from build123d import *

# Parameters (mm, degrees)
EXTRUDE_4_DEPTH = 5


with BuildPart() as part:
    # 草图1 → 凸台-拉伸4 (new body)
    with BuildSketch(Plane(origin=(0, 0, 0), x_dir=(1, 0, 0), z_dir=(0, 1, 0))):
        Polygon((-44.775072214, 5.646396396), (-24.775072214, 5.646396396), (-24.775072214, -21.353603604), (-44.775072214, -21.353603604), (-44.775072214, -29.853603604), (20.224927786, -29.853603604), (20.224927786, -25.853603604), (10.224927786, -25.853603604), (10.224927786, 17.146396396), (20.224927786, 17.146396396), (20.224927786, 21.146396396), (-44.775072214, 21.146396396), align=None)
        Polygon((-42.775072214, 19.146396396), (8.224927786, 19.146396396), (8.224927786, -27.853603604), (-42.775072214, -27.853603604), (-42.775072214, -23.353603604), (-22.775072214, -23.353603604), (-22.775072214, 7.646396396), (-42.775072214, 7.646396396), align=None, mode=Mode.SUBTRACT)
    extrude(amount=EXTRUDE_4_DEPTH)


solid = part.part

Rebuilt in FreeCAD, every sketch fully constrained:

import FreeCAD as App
import Part
import Sketcher

V = App.Vector
Q = App.Units.Quantity

doc = App.newDocument("Part")
params = doc.addObject("Spreadsheet::Sheet", "Params")
for row, (alias, value) in enumerate([
    ("sketch1_width", "20 mm"),
    ("sketch1_width2", "65 mm"),
    ("sketch1_width3", "10 mm"),
    ("sketch1_width4", "51 mm"),
    ("sketch1_height", "27 mm"),
    ("pad1_length", "5 mm"),
], start=1):
    params.set(f"A{row}", alias)
    params.set(f"B{row}", "=" + value)
    params.setAlias(f"B{row}", alias)

body = doc.addObject("PartDesign::Body", "Body")

# Sketch on XZ plane
sketch1 = doc.addObject("Sketcher::SketchObject", "Sketch")
body.addObject(sketch1)
sketch1.AttachmentSupport = (doc.XZ_Plane, [""])
sketch1.MapMode = "FlatFace"
sketch1.addGeometry([
    Part.LineSegment(V(-44.775072, -5.646396, 0), V(-24.775072, -5.646396, 0)),  # 0
    Part.LineSegment(V(-24.775072, -5.646396, 0), V(-24.775072, 21.353604, 0)),  # 1
    Part.LineSegment(V(-24.775072, 21.353604, 0), V(-44.775072, 21.353604, 0)),  # 2
    Part.LineSegment(V(-44.775072, 21.353604, 0), V(-44.775072, 29.853604, 0)),  # 3
    Part.LineSegment(V(-44.775072, 29.853604, 0), V(20.224928, 29.853604, 0)),  # 4
    Part.LineSegment(V(20.224928, 29.853604, 0), V(20.224928, 25.853604, 0)),  # 5
    Part.LineSegment(V(20.224928, 25.853604, 0), V(10.224928, 25.853604, 0)),  # 6
    Part.LineSegment(V(10.224928, 25.853604, 0), V(10.224928, -17.146396, 0)),  # 7
    Part.LineSegment(V(10.224928, -17.146396, 0), V(20.224928, -17.146396, 0)),  # 8
    Part.LineSegment(V(20.224928, -17.146396, 0), V(20.224928, -21.146396, 0)),  # 9
    Part.LineSegment(V(20.224928, -21.146396, 0), V(-44.775072, -21.146396, 0)),  # 10
    Part.LineSegment(V(-44.775072, -21.146396, 0), V(-44.775072, -5.646396, 0)),  # 11
    Part.LineSegment(V(-42.775072, -7.646396, 0), V(-42.775072, -19.146396, 0)),  # 12
    Part.LineSegment(V(-42.775072, -19.146396, 0), V(8.224928, -19.146396, 0)),  # 13
    Part.LineSegment(V(8.224928, -19.146396, 0), V(8.224928, 27.853604, 0)),  # 14
    Part.LineSegment(V(8.224928, 27.853604, 0), V(-42.775072, 27.853604, 0)),  # 15
    Part.LineSegment(V(-42.775072, 27.853604, 0), V(-42.775072, 23.353604, 0)),  # 16
    Part.LineSegment(V(-42.775072, 23.353604, 0), V(-22.775072, 23.353604, 0)),  # 17
    Part.LineSegment(V(-22.775072, 23.353604, 0), V(-22.775072, -7.646396, 0)),  # 18
    Part.LineSegment(V(-22.775072, -7.646396, 0), V(-42.775072, -7.646396, 0)),  # 19
], False)
sketch1.addConstraint([
    Sketcher.Constraint("Coincident", 0, 2, 1, 1),
    Sketcher.Constraint("Coincident", 1, 2, 2, 1),
    Sketcher.Constraint("Coincident", 2, 2, 3, 1),
    Sketcher.Constraint("Coincident", 3, 2, 4, 1),
    Sketcher.Constraint("Coincident", 4, 2, 5, 1),
    Sketcher.Constraint("Coincident", 5, 2, 6, 1),
    Sketcher.Constraint("Coincident", 6, 2, 7, 1),
    Sketcher.Constraint("Coincident", 7, 2, 8, 1),
    Sketcher.Constraint("Coincident", 8, 2, 9, 1),
    Sketcher.Constraint("Coincident", 9, 2, 10, 1),
    Sketcher.Constraint("Coincident", 10, 2, 11, 1),
    Sketcher.Constraint("Coincident", 11, 2, 0, 1),
    Sketcher.Constraint("Coincident", 12, 2, 13, 1),
    Sketcher.Constraint("Coincident", 13, 2, 14, 1),
    Sketcher.Constraint("Coincident", 14, 2, 15, 1),
    Sketcher.Constraint("Coincident", 15, 2, 16, 1),
    Sketcher.Constraint("Coincident", 16, 2, 17, 1),
    Sketcher.Constraint("Coincident", 17, 2, 18, 1),
    Sketcher.Constraint("Coincident", 18, 2, 19, 1),
    Sketcher.Constraint("Coincident", 19, 2, 12, 1),
    Sketcher.Constraint("Horizontal", 0),
    Sketcher.Constraint("Vertical", 1),
    Sketcher.Constraint("Horizontal", 2),
    Sketcher.Constraint("Vertical", 3),
    Sketcher.Constraint("Horizontal", 4),
    Sketcher.Constraint("Vertical", 5),
    Sketcher.Constraint("Horizontal", 6),
    Sketcher.Constraint("Vertical", 7),
    Sketcher.Constraint("Horizontal", 8),
    Sketcher.Constraint("Vertical", 9),
    Sketcher.Constraint("Horizontal", 10),
    Sketcher.Constraint("Vertical", 11),
    Sketcher.Constraint("Vertical", 12),
    Sketcher.Constraint("Horizontal", 13),
    Sketcher.Constraint("Vertical", 14),
    Sketcher.Constraint("Horizontal", 15),
    Sketcher.Constraint("Vertical", 16),
    Sketcher.Constraint("Horizontal", 17),
    Sketcher.Constraint("Vertical", 18),
    Sketcher.Constraint("Horizontal", 19),
    Sketcher.Constraint("Vertical", 5, 2, 8, 2),
    Sketcher.Constraint("Vertical", 3, 2, 10, 2),
    Sketcher.Constraint("Vertical", 12, 2, 15, 2),
    Sketcher.Constraint("Equal", 2, 17),
    Sketcher.Constraint("Equal", 5, 9),
    Sketcher.Constraint("DistanceX", 0, 1, 0, 2, Q("20 mm")),
    Sketcher.Constraint("DistanceX", 4, 1, 4, 2, Q("65 mm")),
    Sketcher.Constraint("DistanceX", 6, 2, 6, 1, Q("10 mm")),
    Sketcher.Constraint("DistanceX", 13, 1, 13, 2, Q("51 mm")),
    Sketcher.Constraint("DistanceY", 1, 1, 1, 2, Q("27 mm")),
    Sketcher.Constraint("DistanceY", 5, 2, 5, 1, Q("4 mm")),
    Sketcher.Constraint("DistanceY", 7, 2, 7, 1, Q("43 mm")),
    Sketcher.Constraint("DistanceY", 14, 1, 14, 2, Q("47 mm")),
    Sketcher.Constraint("DistanceY", 18, 2, 18, 1, Q("31 mm")),
    Sketcher.Constraint("DistanceY", 3, 1, 3, 2, Q("8.5 mm")),
    Sketcher.Constraint("DistanceY", 12, 2, 12, 1, Q("11.5 mm")),
    Sketcher.Constraint("DistanceX", 10, 2, 12, 2, Q("2 mm")),
    Sketcher.Constraint("DistanceY", 10, 2, 12, 2, Q("2 mm")),
    Sketcher.Constraint("DistanceX", 0, 2, -1, 1, Q("24.775072 mm")),
    Sketcher.Constraint("DistanceY", 0, 2, -1, 1, Q("5.646396 mm")),
])
sketch1.setExpression("Constraints[45]", "Params.sketch1_width")
sketch1.setExpression("Constraints[46]", "Params.sketch1_width2")
sketch1.setExpression("Constraints[47]", "Params.sketch1_width3")
sketch1.setExpression("Constraints[48]", "Params.sketch1_width4")
sketch1.setExpression("Constraints[49]", "Params.sketch1_height")
pad1 = doc.addObject("PartDesign::Pad", "Pad")
body.addObject(pad1)
pad1.Profile = sketch1
pad1.setExpression("Length", "Params.pad1_length")
pad1.Reversed = True

doc.recompute()
